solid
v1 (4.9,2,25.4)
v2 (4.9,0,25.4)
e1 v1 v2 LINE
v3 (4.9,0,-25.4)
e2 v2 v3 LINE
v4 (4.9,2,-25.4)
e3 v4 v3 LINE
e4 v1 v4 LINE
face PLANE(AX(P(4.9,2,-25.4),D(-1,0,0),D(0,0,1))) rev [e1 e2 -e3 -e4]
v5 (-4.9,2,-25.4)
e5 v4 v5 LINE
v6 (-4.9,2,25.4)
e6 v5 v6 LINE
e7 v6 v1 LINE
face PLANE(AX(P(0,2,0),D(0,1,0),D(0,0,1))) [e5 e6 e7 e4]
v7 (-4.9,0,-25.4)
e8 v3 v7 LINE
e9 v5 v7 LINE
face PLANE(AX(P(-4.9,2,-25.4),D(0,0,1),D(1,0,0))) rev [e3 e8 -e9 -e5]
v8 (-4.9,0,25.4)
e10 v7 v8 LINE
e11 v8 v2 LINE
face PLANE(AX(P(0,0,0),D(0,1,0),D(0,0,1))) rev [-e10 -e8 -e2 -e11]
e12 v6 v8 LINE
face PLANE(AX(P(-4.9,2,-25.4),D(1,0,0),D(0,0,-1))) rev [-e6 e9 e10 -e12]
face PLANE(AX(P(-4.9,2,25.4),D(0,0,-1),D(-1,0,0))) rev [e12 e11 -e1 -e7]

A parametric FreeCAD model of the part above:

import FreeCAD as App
import Part
import Sketcher
Q = App.Units.Quantity


def add_polygon(sketch, points):
    """Adds a closed chain of lines whose ends are joined by coincident constraints."""
    first, n = sketch.GeometryCount, len(points)
    for a, b in zip(points, points[1:] + points[:1]):
        sketch.addGeometry(Part.LineSegment(App.Vector(*a, 0), App.Vector(*b, 0)), False)
    for i in range(n):
        sketch.addConstraint(Sketcher.Constraint("Coincident", first + i, 2, first + (i + 1) % n, 1))

doc = App.newDocument("Part")
body = doc.addObject("PartDesign::Body", "Body")

sketch1 = body.newObject("Sketcher::SketchObject", "Sketch")
sketch1.AttachmentSupport = (doc.getObject("XZ_Plane"), [""])
sketch1.MapMode = "FlatFace"
add_polygon(sketch1, [(-5, -25), (-5, 25), (5, 25), (5, -25)])
sketch1.addConstraint([
    Sketcher.Constraint("Vertical", 0),
    Sketcher.Constraint("Horizontal", 1),
    Sketcher.Constraint("Vertical", 2),
    Sketcher.Constraint("Horizontal", 3),
    Sketcher.Constraint("Symmetric", 0, 2, 2, 2, -1, 1),
    Sketcher.Constraint("DistanceX", 1, 1, 1, 2, Q("9.8 mm")),
    Sketcher.Constraint("DistanceY", 0, 1, 0, 2, Q("50.8 mm")),
])
pad1 = body.newObject("PartDesign::Pad", "Pad")
pad1.Profile = sketch1
pad1.Length = 2
pad1.Reversed = True

doc.recompute()
